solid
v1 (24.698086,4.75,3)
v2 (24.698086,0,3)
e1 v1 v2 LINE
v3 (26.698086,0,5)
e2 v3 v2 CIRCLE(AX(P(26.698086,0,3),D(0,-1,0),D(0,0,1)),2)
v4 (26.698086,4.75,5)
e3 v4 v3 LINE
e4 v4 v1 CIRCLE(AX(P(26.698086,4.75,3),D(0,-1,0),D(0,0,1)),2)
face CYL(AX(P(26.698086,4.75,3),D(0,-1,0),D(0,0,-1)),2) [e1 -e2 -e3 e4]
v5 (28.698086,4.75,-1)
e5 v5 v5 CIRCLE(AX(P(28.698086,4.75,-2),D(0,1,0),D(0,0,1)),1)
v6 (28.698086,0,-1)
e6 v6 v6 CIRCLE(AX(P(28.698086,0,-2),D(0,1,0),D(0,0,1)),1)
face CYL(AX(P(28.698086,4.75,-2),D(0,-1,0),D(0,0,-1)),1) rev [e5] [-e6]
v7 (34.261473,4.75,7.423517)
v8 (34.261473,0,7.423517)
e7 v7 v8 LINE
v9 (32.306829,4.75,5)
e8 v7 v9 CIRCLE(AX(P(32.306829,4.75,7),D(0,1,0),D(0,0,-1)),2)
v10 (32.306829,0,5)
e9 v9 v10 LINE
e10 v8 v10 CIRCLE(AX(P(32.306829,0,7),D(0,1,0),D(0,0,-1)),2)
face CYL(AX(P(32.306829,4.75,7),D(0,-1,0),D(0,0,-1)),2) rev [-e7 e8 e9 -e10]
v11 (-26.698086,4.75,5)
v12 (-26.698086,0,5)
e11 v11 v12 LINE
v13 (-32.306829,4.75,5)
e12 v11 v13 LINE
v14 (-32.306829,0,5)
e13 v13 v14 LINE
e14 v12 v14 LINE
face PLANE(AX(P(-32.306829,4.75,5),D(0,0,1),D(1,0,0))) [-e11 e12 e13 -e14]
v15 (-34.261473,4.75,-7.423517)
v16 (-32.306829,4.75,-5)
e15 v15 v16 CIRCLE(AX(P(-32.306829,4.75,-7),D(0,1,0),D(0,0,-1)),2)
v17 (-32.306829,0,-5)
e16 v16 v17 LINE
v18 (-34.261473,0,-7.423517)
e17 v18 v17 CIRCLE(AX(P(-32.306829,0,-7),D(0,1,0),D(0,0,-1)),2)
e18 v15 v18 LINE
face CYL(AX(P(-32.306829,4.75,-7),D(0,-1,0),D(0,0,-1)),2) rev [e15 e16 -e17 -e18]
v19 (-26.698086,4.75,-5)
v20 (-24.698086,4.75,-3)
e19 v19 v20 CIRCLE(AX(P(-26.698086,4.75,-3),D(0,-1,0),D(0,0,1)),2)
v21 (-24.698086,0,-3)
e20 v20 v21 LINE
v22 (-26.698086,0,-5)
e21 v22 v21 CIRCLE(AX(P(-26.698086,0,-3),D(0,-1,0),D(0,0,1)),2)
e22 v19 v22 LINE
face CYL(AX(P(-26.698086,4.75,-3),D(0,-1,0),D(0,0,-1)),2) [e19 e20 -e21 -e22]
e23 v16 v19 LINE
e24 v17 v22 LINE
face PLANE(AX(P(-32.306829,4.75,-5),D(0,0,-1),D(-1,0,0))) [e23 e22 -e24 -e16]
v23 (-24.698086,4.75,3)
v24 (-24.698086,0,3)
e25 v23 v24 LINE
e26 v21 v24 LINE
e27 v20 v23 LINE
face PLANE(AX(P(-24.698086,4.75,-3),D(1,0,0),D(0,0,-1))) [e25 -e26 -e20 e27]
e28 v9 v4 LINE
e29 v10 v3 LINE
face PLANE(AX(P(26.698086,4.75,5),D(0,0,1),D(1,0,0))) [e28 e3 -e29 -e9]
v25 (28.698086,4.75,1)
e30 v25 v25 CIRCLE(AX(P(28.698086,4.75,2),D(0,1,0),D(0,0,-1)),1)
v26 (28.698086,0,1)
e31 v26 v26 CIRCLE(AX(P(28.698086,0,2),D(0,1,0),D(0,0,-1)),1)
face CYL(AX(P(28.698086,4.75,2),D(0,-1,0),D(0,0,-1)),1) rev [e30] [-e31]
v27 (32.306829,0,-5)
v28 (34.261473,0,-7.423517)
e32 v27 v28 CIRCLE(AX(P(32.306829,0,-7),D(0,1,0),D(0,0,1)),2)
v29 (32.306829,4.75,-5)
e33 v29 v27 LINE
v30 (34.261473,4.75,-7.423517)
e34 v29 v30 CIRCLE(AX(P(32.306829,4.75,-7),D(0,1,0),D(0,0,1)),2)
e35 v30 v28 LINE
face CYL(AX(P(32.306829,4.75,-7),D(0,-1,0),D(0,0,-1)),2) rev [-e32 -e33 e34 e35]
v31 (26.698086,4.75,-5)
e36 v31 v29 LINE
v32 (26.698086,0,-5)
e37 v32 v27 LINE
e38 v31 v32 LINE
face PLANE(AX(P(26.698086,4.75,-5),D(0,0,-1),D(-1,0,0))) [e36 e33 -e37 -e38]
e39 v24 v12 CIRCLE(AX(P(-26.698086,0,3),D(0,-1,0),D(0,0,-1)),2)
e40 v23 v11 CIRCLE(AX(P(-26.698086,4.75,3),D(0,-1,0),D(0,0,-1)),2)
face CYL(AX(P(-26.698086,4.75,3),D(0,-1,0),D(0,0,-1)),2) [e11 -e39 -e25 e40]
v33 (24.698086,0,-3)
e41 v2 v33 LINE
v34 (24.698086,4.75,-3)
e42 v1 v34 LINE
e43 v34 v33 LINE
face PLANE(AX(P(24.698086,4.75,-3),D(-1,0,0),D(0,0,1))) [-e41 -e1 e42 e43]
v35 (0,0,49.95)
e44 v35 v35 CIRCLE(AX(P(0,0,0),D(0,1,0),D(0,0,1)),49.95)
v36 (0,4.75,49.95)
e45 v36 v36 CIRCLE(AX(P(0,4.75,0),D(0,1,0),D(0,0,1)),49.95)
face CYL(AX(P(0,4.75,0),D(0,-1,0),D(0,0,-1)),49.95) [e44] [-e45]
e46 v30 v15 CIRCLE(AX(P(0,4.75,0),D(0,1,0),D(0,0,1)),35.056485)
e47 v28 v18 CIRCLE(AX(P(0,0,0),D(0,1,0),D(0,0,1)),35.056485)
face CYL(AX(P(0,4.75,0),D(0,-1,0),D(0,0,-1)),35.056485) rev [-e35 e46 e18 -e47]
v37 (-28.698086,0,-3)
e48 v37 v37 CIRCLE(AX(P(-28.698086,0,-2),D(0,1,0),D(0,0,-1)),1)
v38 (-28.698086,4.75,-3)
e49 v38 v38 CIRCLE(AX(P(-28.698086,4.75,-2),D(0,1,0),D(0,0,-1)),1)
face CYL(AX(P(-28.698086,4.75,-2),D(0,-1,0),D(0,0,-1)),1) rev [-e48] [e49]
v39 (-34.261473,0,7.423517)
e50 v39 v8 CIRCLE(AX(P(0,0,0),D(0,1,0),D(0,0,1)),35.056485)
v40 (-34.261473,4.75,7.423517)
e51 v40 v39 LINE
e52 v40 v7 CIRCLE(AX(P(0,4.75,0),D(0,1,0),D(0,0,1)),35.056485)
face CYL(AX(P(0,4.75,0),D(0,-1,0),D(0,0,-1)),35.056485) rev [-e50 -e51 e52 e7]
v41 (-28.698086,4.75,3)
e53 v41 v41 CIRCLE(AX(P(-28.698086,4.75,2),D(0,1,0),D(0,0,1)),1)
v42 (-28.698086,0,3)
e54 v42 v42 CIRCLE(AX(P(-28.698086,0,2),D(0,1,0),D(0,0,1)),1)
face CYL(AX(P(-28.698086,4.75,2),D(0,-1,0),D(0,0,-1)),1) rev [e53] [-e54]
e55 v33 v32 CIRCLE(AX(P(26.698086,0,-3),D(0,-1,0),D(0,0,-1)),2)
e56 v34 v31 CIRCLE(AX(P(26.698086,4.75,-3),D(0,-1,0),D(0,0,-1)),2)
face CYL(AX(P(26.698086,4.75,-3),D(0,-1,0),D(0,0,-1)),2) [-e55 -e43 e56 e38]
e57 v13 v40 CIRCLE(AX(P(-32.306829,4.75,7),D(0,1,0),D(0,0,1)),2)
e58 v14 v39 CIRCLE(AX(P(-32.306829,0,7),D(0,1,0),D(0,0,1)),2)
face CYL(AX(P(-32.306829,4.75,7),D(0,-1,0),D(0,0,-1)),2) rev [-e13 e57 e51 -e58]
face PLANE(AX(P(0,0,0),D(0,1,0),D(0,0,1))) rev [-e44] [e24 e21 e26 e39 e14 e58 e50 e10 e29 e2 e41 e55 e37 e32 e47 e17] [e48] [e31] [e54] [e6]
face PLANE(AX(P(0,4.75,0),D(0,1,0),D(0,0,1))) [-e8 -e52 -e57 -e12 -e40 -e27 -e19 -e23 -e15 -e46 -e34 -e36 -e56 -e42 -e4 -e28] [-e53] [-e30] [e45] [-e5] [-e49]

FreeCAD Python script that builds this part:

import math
import FreeCAD as App
import Part
import Sketcher

V = App.Vector

doc = App.newDocument("Part")
body = doc.addObject("PartDesign::Body", "Body")

sketch1 = body.newObject("Sketcher::SketchObject", "Sketch")
sketch1.AttachmentSupport = (doc.getObject("XZ_Plane"), [""])
sketch1.MapMode = "FlatFace"
sketch1.addGeometry([
    Part.Circle(V(0, 0, 0), V(0, 0, 1), 50),
    Part.Circle(V(-28.7, -2, 0), V(0, 0, 1), 1),
    Part.Circle(V(-28.7, 2, 0), V(0, 0, 1), 1),
    Part.Circle(V(28.7, -2, 0), V(0, 0, 1), 1),
    Part.ArcOfCircle(Part.Circle(V(-32.3, 7, 0), V(0, 0, 1), 2), math.radians(168), math.radians(270)),
    Part.LineSegment(V(-32.3, 5, 0), V(-26.7, 5, 0)),
    Part.ArcOfCircle(Part.Circle(V(-26.7, 3, 0), V(0, 0, 1), 2), math.radians(0), math.radians(90)),
    Part.LineSegment(V(-24.7, 3, 0), V(-24.7, -3, 0)),
    Part.ArcOfCircle(Part.Circle(V(-26.7, -3, 0), V(0, 0, 1), 2), math.radians(-90), math.radians(0)),
    Part.LineSegment(V(-26.7, -5, 0), V(-32.3, -5, 0)),
    Part.ArcOfCircle(Part.Circle(V(-32.3, -7, 0), V(0, 0, 1), 2), math.radians(90), math.radians(192)),
    Part.ArcOfCircle(Part.Circle(V(0, 0, 0), V(0, 0, 1), 35.1), math.radians(-168), math.radians(-12)),
    Part.ArcOfCircle(Part.Circle(V(32.3, -7, 0), V(0, 0, 1), 2), math.radians(-12), math.radians(90)),
    Part.LineSegment(V(32.3, -5, 0), V(26.7, -5, 0)),
    Part.ArcOfCircle(Part.Circle(V(26.7, -3, 0), V(0, 0, 1), 2), math.radians(-180), math.radians(-90)),
    Part.LineSegment(V(24.7, -3, 0), V(24.7, 3, 0)),
    Part.ArcOfCircle(Part.Circle(V(26.7, 3, 0), V(0, 0, 1), 2), math.radians(90), math.radians(180)),
    Part.LineSegment(V(26.7, 5, 0), V(32.3, 5, 0)),
    Part.ArcOfCircle(Part.Circle(V(32.3, 7, 0), V(0, 0, 1), 2), math.radians(-90), math.radians(12)),
    Part.ArcOfCircle(Part.Circle(V(0, 0, 0), V(0, 0, 1), 35.1), math.radians(12), math.radians(168)),
    Part.Circle(V(28.7, 2, 0), V(0, 0, 1), 1),
], False)
sketch1.addConstraint([
    Sketcher.Constraint("Tangent", 4, 2, 5, 1),
    Sketcher.Constraint("Tangent", 5, 2, 6, 2),
    Sketcher.Constraint("Tangent", 6, 1, 7, 1),
    Sketcher.Constraint("Tangent", 7, 2, 8, 2),
    Sketcher.Constraint("Tangent", 8, 1, 9, 1),
    Sketcher.Constraint("Tangent", 9, 2, 10, 1),
    Sketcher.Constraint("Tangent", 10, 2, 11, 1),
    Sketcher.Constraint("Tangent", 11, 2, 12, 1),
    Sketcher.Constraint("Tangent", 12, 2, 13, 1),
    Sketcher.Constraint("Tangent", 13, 2, 14, 2),
    Sketcher.Constraint("Tangent", 14, 1, 15, 1),
    Sketcher.Constraint("Tangent", 15, 2, 16, 2),
    Sketcher.Constraint("Tangent", 16, 1, 17, 1),
    Sketcher.Constraint("Tangent", 17, 2, 18, 1),
    Sketcher.Constraint("Tangent", 18, 2, 19, 1),
    Sketcher.Constraint("Tangent", 19, 2, 4, 1),
    Sketcher.Constraint("Horizontal", 5),
    Sketcher.Constraint("Vertical", 7),
    Sketcher.Constraint("Horizontal", 9),
    Sketcher.Constraint("Horizontal", 13),
    Sketcher.Constraint("Vertical", 15),
    Sketcher.Constraint("Horizontal", 17),
    Sketcher.Constraint("Coincident", 0, 3, -1, 1),
    Sketcher.Constraint("Coincident", 11, 3, -1, 1),
    Sketcher.Constraint("Coincident", 19, 3, -1, 1),
    Sketcher.Constraint("Equal", 1, 2),
    Sketcher.Constraint("Equal", 2, 3),
    Sketcher.Constraint("Equal", 4, 6),
    Sketcher.Constraint("Equal", 6, 8),
    Sketcher.Constraint("Equal", 8, 10),
    Sketcher.Constraint("Equal", 10, 12),
    Sketcher.Constraint("Equal", 12, 14),
    Sketcher.Constraint("Equal", 14, 16),
    Sketcher.Constraint("Equal", 16, 18),
    Sketcher.Constraint("Equal", 11, 19),
    Sketcher.Constraint("Equal", 3, 20),
    Sketcher.Constraint("Symmetric", 2, 3, 3, 3, -1, 1),
    Sketcher.Constraint("Symmetric", 6, 3, 14, 3, -1, 1),
    Sketcher.Constraint("Symmetric", 1, 3, 20, 3, -1, 1),
    Sketcher.Constraint("Symmetric", 1, 3, 3, 3, -2),
    Sketcher.Constraint("Horizontal", 10, 3, 12, 3),
    Sketcher.Constraint("Horizontal", 6, 3, 16, 3),
    Sketcher.Constraint("Diameter", 1, 2.0),
    Sketcher.Constraint("Radius", 4, 2.0),
    Sketcher.Constraint("Diameter", 0, 99.9),
    Sketcher.Constraint("DistanceY", 7, 2, 7, 1, 6.0),
    Sketcher.Constraint("DistanceY", 1, 3, -1, 1, 2.0),
    Sketcher.Constraint("DistanceX", 2, 3, 6, 3, 2.0),
    Sketcher.Constraint("Radius", 11, 35.056485),
    Sketcher.Constraint("DistanceX", 5, 1, 5, 2, 5.608743),
])
pad1 = body.newObject("PartDesign::Pad", "Pad")
pad1.Profile = sketch1
pad1.Length = 4.75
pad1.Reversed = True

doc.recompute()
